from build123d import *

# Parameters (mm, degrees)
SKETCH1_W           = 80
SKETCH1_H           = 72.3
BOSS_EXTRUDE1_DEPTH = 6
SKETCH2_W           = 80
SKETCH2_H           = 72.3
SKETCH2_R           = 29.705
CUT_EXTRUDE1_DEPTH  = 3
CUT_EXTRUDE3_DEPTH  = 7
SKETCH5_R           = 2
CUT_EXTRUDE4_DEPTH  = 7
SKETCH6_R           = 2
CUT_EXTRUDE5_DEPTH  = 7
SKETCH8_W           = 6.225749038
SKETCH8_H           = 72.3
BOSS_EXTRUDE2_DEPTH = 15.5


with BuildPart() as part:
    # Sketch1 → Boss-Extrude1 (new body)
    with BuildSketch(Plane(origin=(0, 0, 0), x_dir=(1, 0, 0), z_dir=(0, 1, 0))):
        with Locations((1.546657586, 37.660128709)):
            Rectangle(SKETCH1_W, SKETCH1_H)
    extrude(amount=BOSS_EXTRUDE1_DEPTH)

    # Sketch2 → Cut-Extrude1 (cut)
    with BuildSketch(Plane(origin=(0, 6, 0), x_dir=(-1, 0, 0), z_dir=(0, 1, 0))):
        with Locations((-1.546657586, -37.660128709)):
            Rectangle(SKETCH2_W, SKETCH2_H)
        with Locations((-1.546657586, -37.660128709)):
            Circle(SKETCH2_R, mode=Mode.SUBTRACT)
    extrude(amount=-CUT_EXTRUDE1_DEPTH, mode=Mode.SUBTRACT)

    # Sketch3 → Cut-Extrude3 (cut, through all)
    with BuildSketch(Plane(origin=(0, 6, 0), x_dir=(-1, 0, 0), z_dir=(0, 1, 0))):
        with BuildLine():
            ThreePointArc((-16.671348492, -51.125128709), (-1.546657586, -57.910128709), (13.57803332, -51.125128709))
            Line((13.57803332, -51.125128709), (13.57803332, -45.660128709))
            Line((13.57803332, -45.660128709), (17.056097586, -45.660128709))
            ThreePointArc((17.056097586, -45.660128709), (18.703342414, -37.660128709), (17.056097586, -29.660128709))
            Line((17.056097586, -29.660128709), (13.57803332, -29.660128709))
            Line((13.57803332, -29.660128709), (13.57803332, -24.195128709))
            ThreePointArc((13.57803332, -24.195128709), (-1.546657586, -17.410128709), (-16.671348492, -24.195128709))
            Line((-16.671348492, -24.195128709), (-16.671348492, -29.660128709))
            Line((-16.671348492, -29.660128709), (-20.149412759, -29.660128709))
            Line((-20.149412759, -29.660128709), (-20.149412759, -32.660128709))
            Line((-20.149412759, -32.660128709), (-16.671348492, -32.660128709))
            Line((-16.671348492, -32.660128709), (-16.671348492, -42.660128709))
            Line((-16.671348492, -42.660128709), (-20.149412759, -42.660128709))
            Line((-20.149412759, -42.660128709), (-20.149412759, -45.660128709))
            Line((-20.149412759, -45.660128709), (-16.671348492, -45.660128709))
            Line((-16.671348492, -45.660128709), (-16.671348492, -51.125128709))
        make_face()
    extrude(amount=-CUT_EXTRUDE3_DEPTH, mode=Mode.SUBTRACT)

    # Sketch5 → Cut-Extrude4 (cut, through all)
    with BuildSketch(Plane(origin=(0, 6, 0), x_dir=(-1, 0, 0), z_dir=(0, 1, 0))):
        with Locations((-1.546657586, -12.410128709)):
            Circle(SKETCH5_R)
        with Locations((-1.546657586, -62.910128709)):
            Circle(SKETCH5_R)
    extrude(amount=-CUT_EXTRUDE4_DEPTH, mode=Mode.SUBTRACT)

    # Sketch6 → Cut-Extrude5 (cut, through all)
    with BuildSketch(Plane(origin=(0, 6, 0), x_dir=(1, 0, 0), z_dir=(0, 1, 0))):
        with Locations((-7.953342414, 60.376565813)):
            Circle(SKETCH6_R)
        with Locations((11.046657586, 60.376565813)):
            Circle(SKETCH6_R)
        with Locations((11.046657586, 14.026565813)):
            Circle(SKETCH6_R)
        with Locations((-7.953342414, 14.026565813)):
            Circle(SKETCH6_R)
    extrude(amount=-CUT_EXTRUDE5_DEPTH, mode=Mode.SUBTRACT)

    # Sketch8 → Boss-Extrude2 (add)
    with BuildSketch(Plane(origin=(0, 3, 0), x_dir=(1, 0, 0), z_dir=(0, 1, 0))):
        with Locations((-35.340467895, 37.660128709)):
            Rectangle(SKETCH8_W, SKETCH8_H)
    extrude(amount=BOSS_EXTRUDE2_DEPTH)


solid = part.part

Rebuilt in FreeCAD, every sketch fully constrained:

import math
import FreeCAD as App
import Part
import Sketcher

V = App.Vector

doc = App.newDocument("Part")
body = doc.addObject("PartDesign::Body", "Body")

# Sketch on XZ plane
sketch1 = body.newObject("Sketcher::SketchObject", "Sketch")
sketch1.AttachmentSupport = (doc.getObject("XZ_Plane"), [""])
sketch1.MapMode = "FlatFace"
sketch1.addGeometry([
    Part.LineSegment(V(-38.453342, -73.810129, 0), V(-38.453342, -1.510129, 0)),
    Part.LineSegment(V(-38.453342, -1.510129, 0), V(41.546658, -1.510129, 0)),
    Part.LineSegment(V(41.546658, -1.510129, 0), V(41.546658, -73.810129, 0)),
    Part.LineSegment(V(41.546658, -73.810129, 0), V(-38.453342, -73.810129, 0)),
], False)
sketch1.addConstraint([
    Sketcher.Constraint("Coincident", 0, 2, 1, 1),
    Sketcher.Constraint("Coincident", 1, 2, 2, 1),
    Sketcher.Constraint("Coincident", 2, 2, 3, 1),
    Sketcher.Constraint("Coincident", 3, 2, 0, 1),
    Sketcher.Constraint("Vertical", 0),
    Sketcher.Constraint("Horizontal", 1),
    Sketcher.Constraint("Vertical", 2),
    Sketcher.Constraint("Horizontal", 3),
    Sketcher.Constraint("DistanceX", 1, 1, 1, 2, 80.0),
    Sketcher.Constraint("DistanceY", 0, 1, 0, 2, 72.3),
    Sketcher.Constraint("DistanceY", 0, 2, -1, 1, 1.510129),
    Sketcher.Constraint("DistanceX", 0, 2, -1, 1, 38.453342),
])
pad1 = body.newObject("PartDesign::Pad", "Pad")
pad1.Profile = sketch1
pad1.Length = 6
pad1.Reversed = True

# Sketch on XZ plane
sketch2 = body.newObject("Sketcher::SketchObject", "Sketch001")
sketch2.AttachmentSupport = (doc.getObject("XZ_Plane"), [""])
sketch2.MapMode = "FlatFace"
sketch2.AttachmentOffset = App.Placement(V(0, 0, -6), App.Rotation())
sketch2.addGeometry([
    Part.LineSegment(V(41.546658, -1.510129, 0), V(41.546658, -73.810129, 0)),  # 0
    Part.LineSegment(V(41.546658, -73.810129, 0), V(-38.453342, -73.810129, 0)),  # 1
    Part.LineSegment(V(-38.453342, -73.810129, 0), V(-38.453342, -1.510129, 0)),  # 2
    Part.LineSegment(V(-38.453342, -1.510129, 0), V(41.546658, -1.510129, 0)),  # 3
    Part.Circle(V(1.546658, -37.660129, 0), V(0, 0, 1), 29.705),  # 4
], False)
sketch2.addConstraint([
    Sketcher.Constraint("Coincident", 0, 2, 1, 1),
    Sketcher.Constraint("Coincident", 1, 2, 2, 1),
    Sketcher.Constraint("Coincident", 2, 2, 3, 1),
    Sketcher.Constraint("Coincident", 3, 2, 0, 1),
    Sketcher.Constraint("Vertical", 0),
    Sketcher.Constraint("Horizontal", 1),
    Sketcher.Constraint("Vertical", 2),
    Sketcher.Constraint("Horizontal", 3),
    Sketcher.Constraint("Diameter", 4, 59.41),
    Sketcher.Constraint("DistanceX", 1, 2, 1, 1, 80.0),
    Sketcher.Constraint("DistanceY", 0, 2, 0, 1, 72.3),
    Sketcher.Constraint("DistanceX", 4, 3, 0, 2, 40.0),
    Sketcher.Constraint("DistanceY", 0, 2, 4, 3, 36.15),
    Sketcher.Constraint("DistanceY", 4, 3, -1, 1, 37.660129),
    Sketcher.Constraint("DistanceX", -1, 1, 4, 3, 1.546658),
])
pocket1 = body.newObject("PartDesign::Pocket", "Pocket")
pocket1.Profile = sketch2
pocket1.Length = 3
pocket1.Reversed = True

# Sketch on XZ plane
sketch3 = body.newObject("Sketcher::SketchObject", "Sketch002")
sketch3.AttachmentSupport = (doc.getObject("XZ_Plane"), [""])
sketch3.MapMode = "FlatFace"
sketch3.AttachmentOffset = App.Placement(V(0, 0, -6), App.Rotation())
sketch3.addGeometry([
    Part.ArcOfCircle(Part.Circle(V(1.546658, -37.660129, 0), V(0, 0, 1), 20.25), math.radians(-138.32241), math.radians(-41.67759)),  # 0
    Part.LineSegment(V(-13.578033, -51.125129, 0), V(-13.578033, -45.660129, 0)),  # 1
    Part.LineSegment(V(-13.578033, -45.660129, 0), V(-17.056098, -45.660129, 0)),  # 2
    Part.ArcOfCircle(Part.Circle(V(1.546658, -37.660129, 0), V(0, 0, 1), 20.25), math.radians(156.730176), math.radians(203.269824)),  # 3
    Part.LineSegment(V(-17.056098, -29.660129, 0), V(-13.578033, -29.660129, 0)),  # 4
    Part.LineSegment(V(-13.578033, -29.660129, 0), V(-13.578033, -24.195129, 0)),  # 5
    Part.ArcOfCircle(Part.Circle(V(1.546658, -37.660129, 0), V(0, 0, 1), 20.25), math.radians(41.67759), math.radians(138.32241)),  # 6
    Part.LineSegment(V(16.671348, -24.195129, 0), V(16.671348, -29.660129, 0)),  # 7
    Part.LineSegment(V(16.671348, -29.660129, 0), V(20.149413, -29.660129, 0)),  # 8
    Part.LineSegment(V(20.149413, -29.660129, 0), V(20.149413, -32.660129, 0)),  # 9
    Part.LineSegment(V(20.149413, -32.660129, 0), V(16.671348, -32.660129, 0)),  # 10
    Part.LineSegment(V(16.671348, -32.660129, 0), V(16.671348, -42.660129, 0)),  # 11
    Part.LineSegment(V(16.671348, -42.660129, 0), V(20.149413, -42.660129, 0)),  # 12
    Part.LineSegment(V(20.149413, -42.660129, 0), V(20.149413, -45.660129, 0)),  # 13
    Part.LineSegment(V(20.149413, -45.660129, 0), V(16.671348, -45.660129, 0)),  # 14
    Part.LineSegment(V(16.671348, -45.660129, 0), V(16.671348, -51.125129, 0)),  # 15
], False)
sketch3.addConstraint([
    Sketcher.Constraint("Coincident", 0, 1, 1, 1),
    Sketcher.Constraint("Coincident", 1, 2, 2, 1),
    Sketcher.Constraint("Coincident", 2, 2, 3, 2),
    Sketcher.Constraint("Coincident", 3, 1, 4, 1),
    Sketcher.Constraint("Coincident", 4, 2, 5, 1),
    Sketcher.Constraint("Coincident", 5, 2, 6, 2),
    Sketcher.Constraint("Coincident", 6, 1, 7, 1),
    Sketcher.Constraint("Coincident", 7, 2, 8, 1),
    Sketcher.Constraint("Coincident", 8, 2, 9, 1),
    Sketcher.Constraint("Coincident", 9, 2, 10, 1),
    Sketcher.Constraint("Coincident", 10, 2, 11, 1),
    Sketcher.Constraint("Coincident", 11, 2, 12, 1),
    Sketcher.Constraint("Coincident", 12, 2, 13, 1),
    Sketcher.Constraint("Coincident", 13, 2, 14, 1),
    Sketcher.Constraint("Coincident", 14, 2, 15, 1),
    Sketcher.Constraint("Coincident", 15, 2, 0, 2),
    Sketcher.Constraint("Vertical", 1),
    Sketcher.Constraint("Horizontal", 2),
    Sketcher.Constraint("Horizontal", 4),
    Sketcher.Constraint("Vertical", 5),
    Sketcher.Constraint("Vertical", 7),
    Sketcher.Constraint("Horizontal", 8),
    Sketcher.Constraint("Vertical", 9),
    Sketcher.Constraint("Horizontal", 10),
    Sketcher.Constraint("Vertical", 11),
    Sketcher.Constraint("Horizontal", 12),
    Sketcher.Constraint("Vertical", 13),
    Sketcher.Constraint("Horizontal", 14),
    Sketcher.Constraint("Vertical", 15),
    Sketcher.Constraint("Coincident", 3, 3, 0, 3),
    Sketcher.Constraint("Coincident", 6, 3, 0, 3),
    Sketcher.Constraint("Equal", 0, 3),
    Sketcher.Constraint("Equal", 3, 6),
    Sketcher.Constraint("Horizontal", 5, 2, 6, 1),
    Sketcher.Constraint("Horizontal", 4, 2, 7, 2),
    Sketcher.Constraint("Horizontal", 2, 2, 13, 2),
    Sketcher.Constraint("Horizontal", 0, 1, 15, 2),
    Sketcher.Constraint("Vertical", 2, 2, 3, 1),
    Sketcher.Constraint("Vertical", 1, 2, 4, 2),
    Sketcher.Constraint("Vertical", 7, 2, 10, 2),
    Sketcher.Constraint("Vertical", 9, 2, 12, 2),
    Sketcher.Constraint("Equal", 4, 8),
    Sketcher.Constraint("Equal", 9, 13),
    Sketcher.Constraint("DistanceY", 9, 2, 9, 1, 3.0),
    Sketcher.Constraint("DistanceY", 11, 2, 11, 1, 10.0),
    Sketcher.Constraint("Radius", 0, 20.25),
    Sketcher.Constraint("DistanceY", 1, 1, 1, 2, 5.465),
    Sketcher.Constraint("DistanceY", 0, 3, -1, 1, 37.660129),
    Sketcher.Constraint("DistanceX", -1, 1, 6, 1, 16.671348),
])
pocket2 = body.newObject("PartDesign::Pocket", "Pocket001")
pocket2.Profile = sketch3
pocket2.Type = "ThroughAll"
pocket2.Reversed = True

# Sketch on XZ plane
sketch4 = body.newObject("Sketcher::SketchObject", "Sketch003")
sketch4.AttachmentSupport = (doc.getObject("XZ_Plane"), [""])
sketch4.MapMode = "FlatFace"
sketch4.AttachmentOffset = App.Placement(V(0, 0, -6), App.Rotation())
sketch4.addGeometry([
    Part.Circle(V(1.546658, -12.410129, 0), V(0, 0, 1), 2),
    Part.Circle(V(1.546658, -62.910129, 0), V(0, 0, 1), 2),
], False)
sketch4.addConstraint([
    Sketcher.Constraint("Equal", 0, 1),
    Sketcher.Constraint("Vertical", 0, 3, 1, 3),
    Sketcher.Constraint("Diameter", 0, 4.0),
    Sketcher.Constraint("DistanceY", 1, 3, 0, 3, 50.5),
    Sketcher.Constraint("DistanceY", 0, 3, -1, 1, 12.410129),
    Sketcher.Constraint("DistanceX", -1, 1, 0, 3, 1.546658),
])
pocket3 = body.newObject("PartDesign::Pocket", "Pocket002")
pocket3.Profile = sketch4
pocket3.Type = "ThroughAll"
pocket3.Reversed = True

# Sketch on XZ plane
sketch5 = body.newObject("Sketcher::SketchObject", "Sketch004")
sketch5.AttachmentSupport = (doc.getObject("XZ_Plane"), [""])
sketch5.MapMode = "FlatFace"
sketch5.AttachmentOffset = App.Placement(V(0, 0, -6), App.Rotation())
sketch5.addGeometry([
    Part.Circle(V(-7.953342, -60.376566, 0), V(0, 0, 1), 2),
    Part.Circle(V(11.046658, -60.376566, 0), V(0, 0, 1), 2),
    Part.Circle(V(11.046658, -14.026566, 0), V(0, 0, 1), 2),
    Part.Circle(V(-7.953342, -14.026566, 0), V(0, 0, 1), 2),
], False)
sketch5.addConstraint([
    Sketcher.Constraint("Equal", 0, 1),
    Sketcher.Constraint("Equal", 1, 2),
    Sketcher.Constraint("Equal", 2, 3),
    Sketcher.Constraint("Horizontal", 0, 3, 1, 3),
    Sketcher.Constraint("Horizontal", 2, 3, 3, 3),
    Sketcher.Constraint("Vertical", 1, 3, 2, 3),
    Sketcher.Constraint("Vertical", 0, 3, 3, 3),
    Sketcher.Constraint("Diameter", 0, 4.0),
    Sketcher.Constraint("DistanceX", 0, 3, 1, 3, 19.0),
    Sketcher.Constraint("DistanceY", 1, 3, 2, 3, 46.35),
    Sketcher.Constraint("DistanceX", 0, 3, -1, 1, 7.953342),
    Sketcher.Constraint("DistanceY", 0, 3, -1, 1, 60.376566),
])
pocket4 = body.newObject("PartDesign::Pocket", "Pocket003")
pocket4.Profile = sketch5
pocket4.Type = "ThroughAll"
pocket4.Reversed = True

# Sketch on XZ plane
sketch6 = body.newObject("Sketcher::SketchObject", "Sketch005")
sketch6.AttachmentSupport = (doc.getObject("XZ_Plane"), [""])
sketch6.MapMode = "FlatFace"
sketch6.AttachmentOffset = App.Placement(V(0, 0, -3), App.Rotation())
sketch6.addGeometry([
    Part.LineSegment(V(-38.453342, -73.810129, 0), V(-38.453342, -1.510129, 0)),
    Part.LineSegment(V(-38.453342, -1.510129, 0), V(-32.227593, -1.510129, 0)),
    Part.LineSegment(V(-32.227593, -1.510129, 0), V(-32.227593, -73.810129, 0)),
    Part.LineSegment(V(-32.227593, -73.810129, 0), V(-38.453342, -73.810129, 0)),
], False)
sketch6.addConstraint([
    Sketcher.Constraint("Coincident", 0, 2, 1, 1),
    Sketcher.Constraint("Coincident", 1, 2, 2, 1),
    Sketcher.Constraint("Coincident", 2, 2, 3, 1),
    Sketcher.Constraint("Coincident", 3, 2, 0, 1),
    Sketcher.Constraint("Vertical", 0),
    Sketcher.Constraint("Horizontal", 1),
    Sketcher.Constraint("Vertical", 2),
    Sketcher.Constraint("Horizontal", 3),
    Sketcher.Constraint("DistanceY", 0, 1, 0, 2, 72.3),
    Sketcher.Constraint("DistanceX", 1, 1, 1, 2, 6.225749),
    Sketcher.Constraint("DistanceY", 0, 2, -1, 1, 1.510129),
    Sketcher.Constraint("DistanceX", 0, 2, -1, 1, 38.453342),
])
pad2 = body.newObject("PartDesign::Pad", "Pad001")
pad2.Profile = sketch6
pad2.Length = 15.5
pad2.Reversed = True

doc.recompute()
